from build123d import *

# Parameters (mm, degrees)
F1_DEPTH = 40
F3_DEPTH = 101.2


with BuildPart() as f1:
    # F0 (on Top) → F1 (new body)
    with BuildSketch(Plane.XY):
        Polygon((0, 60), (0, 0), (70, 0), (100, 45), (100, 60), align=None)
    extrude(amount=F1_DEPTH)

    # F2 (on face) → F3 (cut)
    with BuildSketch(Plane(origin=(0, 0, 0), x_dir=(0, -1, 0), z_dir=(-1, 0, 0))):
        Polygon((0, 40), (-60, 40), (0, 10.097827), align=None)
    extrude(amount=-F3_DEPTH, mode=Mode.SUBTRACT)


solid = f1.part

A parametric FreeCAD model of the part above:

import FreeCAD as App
import Part
import Sketcher

V = App.Vector
Q = App.Units.Quantity


def add_polygon(sketch, points):
    """Adds a closed chain of lines whose ends are joined by coincident constraints."""
    first, n = sketch.GeometryCount, len(points)
    for a, b in zip(points, points[1:] + points[:1]):
        sketch.addGeometry(Part.LineSegment(App.Vector(*a, 0), App.Vector(*b, 0)), False)
    for i in range(n):
        sketch.addConstraint(Sketcher.Constraint("Coincident", first + i, 2, first + (i + 1) % n, 1))

doc = App.newDocument("Part")
body = doc.addObject("PartDesign::Body", "Body")

sketch1 = body.newObject("Sketcher::SketchObject", "Sketch")
sketch1.AttachmentSupport = (doc.getObject("XY_Plane"), [""])
sketch1.MapMode = "FlatFace"
add_polygon(sketch1, [(0, 60), (0, 0), (70, 0), (100, 45), (100, 60)])
sketch1.addConstraint([
    Sketcher.Constraint("Vertical", 0),
    Sketcher.Constraint("Horizontal", 1),
    Sketcher.Constraint("Vertical", 3),
    Sketcher.Constraint("Horizontal", 4),
    Sketcher.Constraint("Coincident", 0, 2, -1, 1),
    Sketcher.Constraint("DistanceX", 1, 1, 1, 2, Q("70 mm")),
    Sketcher.Constraint("DistanceX", 4, 2, 4, 1, Q("100 mm")),
    Sketcher.Constraint("DistanceY", 0, 2, 0, 1, Q("60 mm")),
    Sketcher.Constraint("DistanceY", 3, 1, 3, 2, Q("15 mm")),
])
pad1 = body.newObject("PartDesign::Pad", "Pad")
pad1.Profile = sketch1
pad1.Length = 40

sketch2 = body.newObject("Sketcher::SketchObject", "Sketch001")
sketch2.AttachmentSupport = (doc.getObject("YZ_Plane"), [""])
sketch2.MapMode = "FlatFace"
add_polygon(sketch2, [(0, 40), (60, 40), (0, 10)])
sketch2.addConstraint([
    Sketcher.Constraint("Horizontal", 0),
    Sketcher.Constraint("Vertical", 2),
    Sketcher.Constraint("PointOnObject", 1, 2, -2),
    Sketcher.Constraint("DistanceX", 0, 1, 0, 2, Q("60 mm")),
    Sketcher.Constraint("DistanceY", -1, 1, 0, 2, Q("40 mm")),
    Sketcher.Constraint("DistanceY", 2, 1, 2, 2, Q("29.902173 mm")),
])
pocket1 = body.newObject("PartDesign::Pocket", "Pocket")
pocket1.Profile = sketch2
pocket1.Length = 101.2
pocket1.Reversed = True

doc.recompute()
